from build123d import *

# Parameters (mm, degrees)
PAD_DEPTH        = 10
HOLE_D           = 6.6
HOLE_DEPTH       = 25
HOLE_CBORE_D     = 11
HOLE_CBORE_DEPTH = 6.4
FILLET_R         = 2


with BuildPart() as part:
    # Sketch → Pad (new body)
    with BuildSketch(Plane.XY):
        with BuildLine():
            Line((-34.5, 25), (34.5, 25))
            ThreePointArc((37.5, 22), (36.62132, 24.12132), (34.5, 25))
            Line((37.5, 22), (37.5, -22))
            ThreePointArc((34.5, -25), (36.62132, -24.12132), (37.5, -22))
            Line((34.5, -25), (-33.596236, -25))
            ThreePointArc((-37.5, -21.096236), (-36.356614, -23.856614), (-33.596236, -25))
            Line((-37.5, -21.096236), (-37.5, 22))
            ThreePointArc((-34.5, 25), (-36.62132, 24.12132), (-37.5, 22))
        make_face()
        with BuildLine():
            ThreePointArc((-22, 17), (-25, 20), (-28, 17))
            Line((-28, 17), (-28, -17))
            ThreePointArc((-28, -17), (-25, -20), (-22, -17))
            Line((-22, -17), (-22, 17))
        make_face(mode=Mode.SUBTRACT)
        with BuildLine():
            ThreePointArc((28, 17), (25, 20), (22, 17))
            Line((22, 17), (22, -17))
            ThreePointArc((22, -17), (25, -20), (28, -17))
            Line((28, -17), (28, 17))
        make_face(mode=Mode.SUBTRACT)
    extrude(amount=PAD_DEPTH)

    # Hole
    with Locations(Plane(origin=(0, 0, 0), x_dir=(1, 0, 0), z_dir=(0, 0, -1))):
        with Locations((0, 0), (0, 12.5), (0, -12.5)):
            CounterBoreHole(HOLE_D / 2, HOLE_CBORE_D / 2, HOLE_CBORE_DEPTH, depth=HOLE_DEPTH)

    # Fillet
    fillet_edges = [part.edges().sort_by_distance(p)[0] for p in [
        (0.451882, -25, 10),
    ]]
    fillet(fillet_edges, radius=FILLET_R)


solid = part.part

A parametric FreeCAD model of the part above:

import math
import FreeCAD as App
import Part
import Sketcher
from FreeCAD import Vector


def edges_at(feature, points):
    """Names of the edges that pass closest to the given points."""
    edges = feature.Shape.Edges
    near = lambda p: min(range(len(edges)), key=lambda i: edges[i].distToShape(Part.Vertex(*p))[0])
    return sorted({f"Edge{near(p) + 1}" for p in points})

doc = App.newDocument("Part")
body = doc.addObject("PartDesign::Body", "Body")

sketch1 = body.newObject("Sketcher::SketchObject", "Sketch")
sketch1.AttachmentSupport = (doc.getObject("XY_Plane"), [""])
sketch1.MapMode = "FlatFace"
sketch1.addGeometry([
    Part.LineSegment(Vector(34.5, 25, 0), Vector(-34.5, 25, 0)),
    Part.ArcOfCircle(Part.Circle(Vector(-34.499999, 21.999999, 0), Vector(0, 0, 1), 3.000001), math.radians(90.000022), math.radians(179.999978)),
    Part.LineSegment(Vector(-37.5, 22, 0), Vector(-37.5, -21.096236, 0)),
    Part.ArcOfCircle(Part.Circle(Vector(-33.596236, -21.096236, 0), Vector(0, 0, 1), 3.903764), math.radians(180), math.radians(270)),
    Part.LineSegment(Vector(-33.596236, -25, 0), Vector(34.5, -25, 0)),
    Part.ArcOfCircle(Part.Circle(Vector(34.499999, -21.999999, 0), Vector(0, 0, 1), 3.000001), math.radians(-89.999978), math.radians(-0.000022)),
    Part.LineSegment(Vector(37.5, -22, 0), Vector(37.5, 22, 0)),
    Part.ArcOfCircle(Part.Circle(Vector(34.499999, 21.999999, 0), Vector(0, 0, 1), 3.000001), math.radians(0.000022), math.radians(89.999978)),
    Part.LineSegment(Vector(28, 17, 0), Vector(28, -17, 0)),
    Part.ArcOfCircle(Part.Circle(Vector(25, -17, 0), Vector(0, 0, 1), 3), math.radians(180), math.radians(360)),
    Part.LineSegment(Vector(22, -17, 0), Vector(22, 17, 0)),
    Part.ArcOfCircle(Part.Circle(Vector(25, 17, 0), Vector(0, 0, 1), 3), math.radians(0), math.radians(180)),
    Part.LineSegment(Vector(-22, 17, 0), Vector(-22, -17, 0)),
    Part.ArcOfCircle(Part.Circle(Vector(-25, -17, 0), Vector(0, 0, 1), 3), math.radians(180), math.radians(360)),
    Part.LineSegment(Vector(-28, -17, 0), Vector(-28, 17, 0)),
    Part.ArcOfCircle(Part.Circle(Vector(-25, 17, 0), Vector(0, 0, 1), 3), math.radians(0), math.radians(180)),
], False)
sketch1.addConstraint([
    Sketcher.Constraint("Tangent", 0, 2, 1, 1),
    Sketcher.Constraint("Tangent", 1, 2, 2, 1),
    Sketcher.Constraint("Tangent", 2, 2, 3, 1),
    Sketcher.Constraint("Tangent", 3, 2, 4, 1),
    Sketcher.Constraint("Tangent", 4, 2, 5, 1),
    Sketcher.Constraint("Tangent", 5, 2, 6, 1),
    Sketcher.Constraint("Tangent", 6, 2, 7, 1),
    Sketcher.Constraint("Tangent", 7, 2, 0, 1),
    Sketcher.Constraint("Tangent", 8, 2, 9, 2),
    Sketcher.Constraint("Tangent", 9, 1, 10, 1),
    Sketcher.Constraint("Tangent", 10, 2, 11, 2),
    Sketcher.Constraint("Tangent", 11, 1, 8, 1),
    Sketcher.Constraint("Tangent", 12, 2, 13, 2),
    Sketcher.Constraint("Tangent", 13, 1, 14, 1),
    Sketcher.Constraint("Tangent", 14, 2, 15, 2),
    Sketcher.Constraint("Tangent", 15, 1, 12, 1),
    Sketcher.Constraint("Horizontal", 0),
    Sketcher.Constraint("Vertical", 2),
    Sketcher.Constraint("Horizontal", 4),
    Sketcher.Constraint("Vertical", 6),
    Sketcher.Constraint("Vertical", 8),
    Sketcher.Constraint("Vertical", 10),
    Sketcher.Constraint("Vertical", 12),
    Sketcher.Constraint("Vertical", 14),
    Sketcher.Constraint("Equal", 1, 5),
    Sketcher.Constraint("Equal", 5, 7),
    Sketcher.Constraint("Equal", 7, 9),
    Sketcher.Constraint("Equal", 11, 13),
    Sketcher.Constraint("Symmetric", 1, 3, 5, 3, -1, 1),
    Sketcher.Constraint("Symmetric", 11, 3, 13, 3, -1, 1),
    Sketcher.Constraint("Horizontal", 9, 3, 13, 3),
    Sketcher.Constraint("Horizontal", 11, 3, 15, 3),
    Sketcher.Constraint("Radius", 1, 3.000001),
    Sketcher.Constraint("DistanceX", 0, 2, 0, 1, 69.0),
    Sketcher.Constraint("DistanceY", 6, 1, 6, 2, 44.0),
    Sketcher.Constraint("DistanceY", 8, 2, 8, 1, 34.0),
    Sketcher.Constraint("DistanceX", -1, 1, 9, 3, 25.0),
    Sketcher.Constraint("Radius", 3, 3.903764),
])
pad1 = body.newObject("PartDesign::Pad", "Pad")
pad1.Profile = sketch1
pad1.Length = 10

sketch2 = body.newObject("Sketcher::SketchObject", "Sketch001")
sketch2.AttachmentSupport = (doc.getObject("XY_Plane"), [""])
sketch2.MapMode = "FlatFace"
sketch2.addGeometry([
    Part.Circle(Vector(0, 0, 0), Vector(0, 0, 1), 3.3),
    Part.Circle(Vector(0, -12.5, 0), Vector(0, 0, 1), 3.3),
    Part.Circle(Vector(0, 12.5, 0), Vector(0, 0, 1), 3.3),
], False)
sketch2.addConstraint([
    Sketcher.Constraint("Coincident", 0, 3, -1, 1),
    Sketcher.Constraint("Equal", 0, 1),
    Sketcher.Constraint("Equal", 1, 2),
    Sketcher.Constraint("Symmetric", 1, 3, 2, 3, -1, 1),
    Sketcher.Constraint("PointOnObject", 1, 3, -2),
    Sketcher.Constraint("Diameter", 0, 6.6),
    Sketcher.Constraint("DistanceY", 1, 3, 2, 3, 25.0),
])
doc.recompute()
hole = body.newObject("PartDesign::Hole", "Hole")
hole.Profile = sketch2
hole.ThreadType = "None"
hole.Diameter = 6.6
hole.DepthType = "Dimension"
hole.Depth = 25
hole.DrillPoint = "Flat"
hole.HoleCutType = "Counterbore"
hole.HoleCutDiameter = 11
hole.HoleCutDepth = 6.4
hole.Reversed = True
doc.recompute()

fillet = body.newObject("PartDesign::Fillet", "Fillet")
fillet.Base = (hole, edges_at(hole, [(0.452, -25, 10)]))
fillet.Radius = 2

doc.recompute()
